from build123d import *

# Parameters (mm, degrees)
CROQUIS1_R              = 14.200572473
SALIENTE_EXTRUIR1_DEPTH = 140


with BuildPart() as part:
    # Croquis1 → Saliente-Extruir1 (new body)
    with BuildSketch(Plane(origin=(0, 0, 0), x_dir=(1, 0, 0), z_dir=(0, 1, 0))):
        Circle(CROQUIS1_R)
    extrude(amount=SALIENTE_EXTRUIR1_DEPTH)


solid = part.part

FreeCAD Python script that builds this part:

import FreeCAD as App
import Part
import Sketcher

V = App.Vector
Q = App.Units.Quantity

doc = App.newDocument("Part")
body = doc.addObject("PartDesign::Body", "Body")

# Sketch on XZ plane
sketch1 = body.newObject("Sketcher::SketchObject", "Sketch")
sketch1.AttachmentSupport = (doc.getObject("XZ_Plane"), [""])
sketch1.MapMode = "FlatFace"
sketch1.addGeometry(Part.Circle(V(0, 0, 0), V(0, 0, 1), 14.200572), False)
sketch1.addConstraint(Sketcher.Constraint("Coincident", 0, 3, -1, 1))
sketch1.addConstraint(Sketcher.Constraint("Diameter", 0, Q("28.401145 mm")))
pad1 = body.newObject("PartDesign::Pad", "Pad")
pad1.Profile = sketch1
pad1.Length = 140
pad1.Reversed = True

doc.recompute()
